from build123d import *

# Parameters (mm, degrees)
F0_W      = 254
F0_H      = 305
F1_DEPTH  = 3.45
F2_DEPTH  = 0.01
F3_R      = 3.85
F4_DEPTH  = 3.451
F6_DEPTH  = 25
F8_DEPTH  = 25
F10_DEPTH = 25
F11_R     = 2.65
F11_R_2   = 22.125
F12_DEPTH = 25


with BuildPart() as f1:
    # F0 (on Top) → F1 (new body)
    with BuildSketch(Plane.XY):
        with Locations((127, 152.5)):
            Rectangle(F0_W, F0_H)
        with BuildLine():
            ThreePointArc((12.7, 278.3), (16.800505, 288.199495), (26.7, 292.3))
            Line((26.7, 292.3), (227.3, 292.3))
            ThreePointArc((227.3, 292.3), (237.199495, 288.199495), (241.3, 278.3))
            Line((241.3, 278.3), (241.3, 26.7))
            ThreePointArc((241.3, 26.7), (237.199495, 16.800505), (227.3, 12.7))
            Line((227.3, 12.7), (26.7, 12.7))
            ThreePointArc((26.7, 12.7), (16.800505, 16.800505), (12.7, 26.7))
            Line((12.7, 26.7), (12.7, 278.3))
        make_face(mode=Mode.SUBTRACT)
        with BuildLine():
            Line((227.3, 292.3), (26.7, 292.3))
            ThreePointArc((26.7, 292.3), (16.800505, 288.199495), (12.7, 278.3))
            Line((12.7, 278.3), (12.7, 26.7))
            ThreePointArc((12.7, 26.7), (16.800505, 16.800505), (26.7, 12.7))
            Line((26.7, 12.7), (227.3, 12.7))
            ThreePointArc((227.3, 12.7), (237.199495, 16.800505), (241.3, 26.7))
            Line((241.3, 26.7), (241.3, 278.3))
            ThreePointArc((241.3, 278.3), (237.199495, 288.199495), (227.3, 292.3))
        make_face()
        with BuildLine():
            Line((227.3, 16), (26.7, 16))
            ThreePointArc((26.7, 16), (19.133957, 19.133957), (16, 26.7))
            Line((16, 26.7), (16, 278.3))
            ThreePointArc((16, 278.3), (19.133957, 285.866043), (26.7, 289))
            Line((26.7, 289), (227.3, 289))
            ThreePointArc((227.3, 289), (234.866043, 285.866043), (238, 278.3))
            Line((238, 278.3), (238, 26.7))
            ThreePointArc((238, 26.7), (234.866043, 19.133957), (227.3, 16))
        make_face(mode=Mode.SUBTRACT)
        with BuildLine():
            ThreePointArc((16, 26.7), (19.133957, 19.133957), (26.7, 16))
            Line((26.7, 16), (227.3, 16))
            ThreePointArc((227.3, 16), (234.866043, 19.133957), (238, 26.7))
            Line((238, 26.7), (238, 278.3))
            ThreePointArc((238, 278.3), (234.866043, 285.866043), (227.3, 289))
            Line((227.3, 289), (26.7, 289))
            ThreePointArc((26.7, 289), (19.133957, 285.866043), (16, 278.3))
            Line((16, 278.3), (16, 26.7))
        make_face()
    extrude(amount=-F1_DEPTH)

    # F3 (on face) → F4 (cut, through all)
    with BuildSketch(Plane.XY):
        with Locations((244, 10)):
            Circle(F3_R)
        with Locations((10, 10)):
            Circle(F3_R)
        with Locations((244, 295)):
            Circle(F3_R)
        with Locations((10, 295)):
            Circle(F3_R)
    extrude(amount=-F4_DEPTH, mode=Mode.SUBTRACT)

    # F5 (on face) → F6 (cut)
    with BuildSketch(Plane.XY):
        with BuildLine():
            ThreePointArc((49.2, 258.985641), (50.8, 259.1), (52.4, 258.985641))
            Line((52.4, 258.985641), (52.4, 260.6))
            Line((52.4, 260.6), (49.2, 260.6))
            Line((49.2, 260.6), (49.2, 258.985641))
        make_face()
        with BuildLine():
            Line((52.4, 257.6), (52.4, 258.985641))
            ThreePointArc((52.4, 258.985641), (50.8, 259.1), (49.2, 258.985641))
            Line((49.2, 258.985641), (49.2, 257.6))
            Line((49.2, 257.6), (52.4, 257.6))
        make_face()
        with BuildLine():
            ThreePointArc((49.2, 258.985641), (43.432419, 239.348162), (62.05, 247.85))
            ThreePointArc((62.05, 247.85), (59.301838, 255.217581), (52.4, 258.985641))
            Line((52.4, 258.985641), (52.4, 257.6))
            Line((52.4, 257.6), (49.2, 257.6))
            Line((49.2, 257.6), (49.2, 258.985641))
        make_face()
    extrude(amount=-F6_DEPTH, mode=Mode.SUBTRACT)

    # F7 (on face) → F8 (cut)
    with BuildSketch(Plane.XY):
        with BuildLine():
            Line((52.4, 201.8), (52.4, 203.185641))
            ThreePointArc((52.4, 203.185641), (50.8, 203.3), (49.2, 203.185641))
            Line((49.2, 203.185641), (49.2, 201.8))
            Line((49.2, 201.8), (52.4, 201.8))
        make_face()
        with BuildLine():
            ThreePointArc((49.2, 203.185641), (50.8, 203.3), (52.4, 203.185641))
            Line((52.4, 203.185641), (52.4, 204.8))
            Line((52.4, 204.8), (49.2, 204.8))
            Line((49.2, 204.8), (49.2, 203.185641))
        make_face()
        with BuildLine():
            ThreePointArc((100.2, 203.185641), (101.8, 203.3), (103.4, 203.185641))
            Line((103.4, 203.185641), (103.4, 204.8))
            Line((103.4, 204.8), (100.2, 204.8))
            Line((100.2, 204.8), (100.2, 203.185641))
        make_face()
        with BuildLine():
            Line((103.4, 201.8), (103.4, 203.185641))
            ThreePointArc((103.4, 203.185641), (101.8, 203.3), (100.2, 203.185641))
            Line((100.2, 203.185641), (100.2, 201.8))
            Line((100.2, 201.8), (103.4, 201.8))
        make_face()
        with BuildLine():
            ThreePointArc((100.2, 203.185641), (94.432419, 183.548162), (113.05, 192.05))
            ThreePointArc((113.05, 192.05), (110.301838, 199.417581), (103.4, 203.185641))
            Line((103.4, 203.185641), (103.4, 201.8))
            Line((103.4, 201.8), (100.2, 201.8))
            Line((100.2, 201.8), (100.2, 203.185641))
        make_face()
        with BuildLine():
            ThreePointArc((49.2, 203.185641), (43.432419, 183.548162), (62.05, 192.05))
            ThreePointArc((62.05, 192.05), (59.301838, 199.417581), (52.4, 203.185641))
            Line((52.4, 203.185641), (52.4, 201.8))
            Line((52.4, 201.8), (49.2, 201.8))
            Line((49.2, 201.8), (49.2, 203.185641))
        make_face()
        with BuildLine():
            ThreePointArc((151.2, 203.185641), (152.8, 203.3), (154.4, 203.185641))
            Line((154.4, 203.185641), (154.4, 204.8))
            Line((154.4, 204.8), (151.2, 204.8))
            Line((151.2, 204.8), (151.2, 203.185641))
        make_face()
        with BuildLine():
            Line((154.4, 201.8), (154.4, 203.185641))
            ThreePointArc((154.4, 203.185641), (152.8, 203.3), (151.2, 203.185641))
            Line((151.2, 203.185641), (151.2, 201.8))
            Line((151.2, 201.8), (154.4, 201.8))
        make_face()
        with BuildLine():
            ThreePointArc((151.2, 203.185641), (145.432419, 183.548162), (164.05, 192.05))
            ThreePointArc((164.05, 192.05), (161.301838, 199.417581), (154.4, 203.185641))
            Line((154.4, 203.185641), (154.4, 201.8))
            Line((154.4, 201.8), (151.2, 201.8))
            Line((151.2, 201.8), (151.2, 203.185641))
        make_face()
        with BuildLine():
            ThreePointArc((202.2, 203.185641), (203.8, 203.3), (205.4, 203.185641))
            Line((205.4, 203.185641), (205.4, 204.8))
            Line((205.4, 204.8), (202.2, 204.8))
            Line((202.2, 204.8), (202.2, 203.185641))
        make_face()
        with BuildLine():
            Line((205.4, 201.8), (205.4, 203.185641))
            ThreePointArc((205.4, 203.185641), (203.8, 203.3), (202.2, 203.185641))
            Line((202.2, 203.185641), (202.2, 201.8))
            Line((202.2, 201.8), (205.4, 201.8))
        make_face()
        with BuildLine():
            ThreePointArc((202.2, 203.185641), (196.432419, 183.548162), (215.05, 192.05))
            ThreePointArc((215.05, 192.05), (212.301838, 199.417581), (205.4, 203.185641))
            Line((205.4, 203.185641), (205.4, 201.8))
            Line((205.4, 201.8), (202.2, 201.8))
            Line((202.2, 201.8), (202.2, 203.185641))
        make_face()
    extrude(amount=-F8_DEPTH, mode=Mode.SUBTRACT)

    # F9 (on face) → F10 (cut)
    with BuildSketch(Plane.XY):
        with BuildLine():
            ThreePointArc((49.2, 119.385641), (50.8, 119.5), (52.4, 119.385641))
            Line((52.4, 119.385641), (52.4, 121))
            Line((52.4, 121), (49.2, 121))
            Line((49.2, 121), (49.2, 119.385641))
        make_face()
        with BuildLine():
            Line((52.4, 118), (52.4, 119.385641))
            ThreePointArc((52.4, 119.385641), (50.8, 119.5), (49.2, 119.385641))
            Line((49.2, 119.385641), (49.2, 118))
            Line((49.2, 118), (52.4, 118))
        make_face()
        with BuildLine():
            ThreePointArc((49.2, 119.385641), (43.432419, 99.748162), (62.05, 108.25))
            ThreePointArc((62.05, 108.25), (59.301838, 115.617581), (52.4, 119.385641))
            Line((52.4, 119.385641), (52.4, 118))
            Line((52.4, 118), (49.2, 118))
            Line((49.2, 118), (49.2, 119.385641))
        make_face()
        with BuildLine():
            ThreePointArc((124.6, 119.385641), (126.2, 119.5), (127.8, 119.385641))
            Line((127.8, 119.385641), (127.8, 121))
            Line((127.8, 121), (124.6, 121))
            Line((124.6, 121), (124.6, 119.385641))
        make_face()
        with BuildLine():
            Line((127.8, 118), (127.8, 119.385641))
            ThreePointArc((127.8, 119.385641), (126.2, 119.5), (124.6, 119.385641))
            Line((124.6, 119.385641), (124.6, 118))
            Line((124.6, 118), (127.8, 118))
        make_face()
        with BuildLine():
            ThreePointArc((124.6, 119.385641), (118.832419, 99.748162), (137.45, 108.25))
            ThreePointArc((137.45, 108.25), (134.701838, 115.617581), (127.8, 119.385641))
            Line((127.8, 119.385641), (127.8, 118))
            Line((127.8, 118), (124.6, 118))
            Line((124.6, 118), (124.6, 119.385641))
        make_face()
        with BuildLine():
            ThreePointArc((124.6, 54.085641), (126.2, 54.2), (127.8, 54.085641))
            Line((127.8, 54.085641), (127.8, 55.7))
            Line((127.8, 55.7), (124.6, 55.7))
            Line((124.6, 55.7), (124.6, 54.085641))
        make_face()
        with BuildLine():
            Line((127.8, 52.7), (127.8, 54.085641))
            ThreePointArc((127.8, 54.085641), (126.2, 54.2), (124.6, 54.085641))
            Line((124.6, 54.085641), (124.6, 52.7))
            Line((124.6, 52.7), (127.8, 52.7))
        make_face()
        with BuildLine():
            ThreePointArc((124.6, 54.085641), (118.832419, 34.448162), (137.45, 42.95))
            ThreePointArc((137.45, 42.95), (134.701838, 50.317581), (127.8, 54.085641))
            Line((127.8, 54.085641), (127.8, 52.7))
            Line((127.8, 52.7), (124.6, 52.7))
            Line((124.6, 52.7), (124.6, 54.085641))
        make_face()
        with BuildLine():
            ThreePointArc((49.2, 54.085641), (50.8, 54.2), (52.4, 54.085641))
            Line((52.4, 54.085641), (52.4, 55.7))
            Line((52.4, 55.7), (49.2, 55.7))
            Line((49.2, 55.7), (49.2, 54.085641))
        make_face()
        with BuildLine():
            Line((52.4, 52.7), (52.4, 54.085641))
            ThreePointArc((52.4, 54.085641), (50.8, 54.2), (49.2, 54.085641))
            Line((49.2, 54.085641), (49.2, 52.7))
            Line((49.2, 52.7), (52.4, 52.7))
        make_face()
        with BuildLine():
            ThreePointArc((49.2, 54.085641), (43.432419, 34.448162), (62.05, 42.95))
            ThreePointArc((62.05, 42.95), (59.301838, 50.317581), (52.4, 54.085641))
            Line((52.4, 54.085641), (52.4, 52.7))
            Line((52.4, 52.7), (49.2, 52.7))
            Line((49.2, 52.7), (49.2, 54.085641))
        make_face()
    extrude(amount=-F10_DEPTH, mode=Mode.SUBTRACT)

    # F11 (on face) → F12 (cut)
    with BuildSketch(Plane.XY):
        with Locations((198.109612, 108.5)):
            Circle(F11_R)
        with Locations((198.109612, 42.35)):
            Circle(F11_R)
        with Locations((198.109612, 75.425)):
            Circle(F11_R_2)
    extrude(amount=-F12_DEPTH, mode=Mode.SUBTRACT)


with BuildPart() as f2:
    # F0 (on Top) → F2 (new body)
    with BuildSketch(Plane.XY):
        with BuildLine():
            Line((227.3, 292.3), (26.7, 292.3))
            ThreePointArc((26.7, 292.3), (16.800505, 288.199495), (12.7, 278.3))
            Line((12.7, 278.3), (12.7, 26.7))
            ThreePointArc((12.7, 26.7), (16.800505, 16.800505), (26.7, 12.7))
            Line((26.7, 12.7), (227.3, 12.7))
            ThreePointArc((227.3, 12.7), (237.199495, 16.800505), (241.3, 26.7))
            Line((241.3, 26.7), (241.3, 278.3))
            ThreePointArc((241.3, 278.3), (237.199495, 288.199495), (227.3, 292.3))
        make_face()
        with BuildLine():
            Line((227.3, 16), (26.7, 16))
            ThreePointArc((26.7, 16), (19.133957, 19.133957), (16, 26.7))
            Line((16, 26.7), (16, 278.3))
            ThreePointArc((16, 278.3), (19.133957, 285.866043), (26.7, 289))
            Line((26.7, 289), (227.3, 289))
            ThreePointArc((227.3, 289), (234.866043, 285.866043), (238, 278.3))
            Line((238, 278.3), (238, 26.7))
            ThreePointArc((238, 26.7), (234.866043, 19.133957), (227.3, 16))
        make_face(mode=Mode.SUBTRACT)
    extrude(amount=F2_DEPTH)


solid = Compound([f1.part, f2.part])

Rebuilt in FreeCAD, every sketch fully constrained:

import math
import FreeCAD as App
import Part
import Sketcher

V = App.Vector
Q = App.Units.Quantity

doc = App.newDocument("Part")
body = doc.addObject("PartDesign::Body", "Body")

sketch1 = body.newObject("Sketcher::SketchObject", "Sketch")
sketch1.AttachmentSupport = (doc.getObject("XY_Plane"), [""])
sketch1.MapMode = "FlatFace"
sketch1.addGeometry([
    Part.LineSegment(V(0, 305, 0), V(0, 0, 0)),
    Part.LineSegment(V(0, 0, 0), V(254, 0, 0)),
    Part.LineSegment(V(254, 0, 0), V(254, 305, 0)),
    Part.LineSegment(V(254, 305, 0), V(0, 305, 0)),
], False)
sketch1.addConstraint([
    Sketcher.Constraint("Coincident", 0, 2, 1, 1),
    Sketcher.Constraint("Coincident", 1, 2, 2, 1),
    Sketcher.Constraint("Coincident", 2, 2, 3, 1),
    Sketcher.Constraint("Coincident", 3, 2, 0, 1),
    Sketcher.Constraint("Vertical", 0),
    Sketcher.Constraint("Horizontal", 1),
    Sketcher.Constraint("Vertical", 2),
    Sketcher.Constraint("Horizontal", 3),
    Sketcher.Constraint("Coincident", 0, 2, -1, 1),
    Sketcher.Constraint("DistanceX", 1, 1, 1, 2, Q("254 mm")),
    Sketcher.Constraint("DistanceY", 0, 2, 0, 1, Q("305 mm")),
])
pad1 = body.newObject("PartDesign::Pad", "Pad")
pad1.Profile = sketch1
pad1.Length = 3.45
pad1.Reversed = True

sketch2 = body.newObject("Sketcher::SketchObject", "Sketch001")
sketch2.AttachmentSupport = (doc.getObject("XY_Plane"), [""])
sketch2.MapMode = "FlatFace"
sketch2.addGeometry([
    Part.Circle(V(244, 10, 0), V(0, 0, 1), 3.9),
    Part.Circle(V(10, 10, 0), V(0, 0, 1), 3.9),
    Part.Circle(V(244, 295, 0), V(0, 0, 1), 3.9),
    Part.Circle(V(10, 295, 0), V(0, 0, 1), 3.9),
], False)
sketch2.addConstraint([
    Sketcher.Constraint("Equal", 0, 1),
    Sketcher.Constraint("Equal", 1, 2),
    Sketcher.Constraint("Equal", 2, 3),
    Sketcher.Constraint("Horizontal", 0, 3, 1, 3),
    Sketcher.Constraint("Horizontal", 2, 3, 3, 3),
    Sketcher.Constraint("Vertical", 0, 3, 2, 3),
    Sketcher.Constraint("Vertical", 1, 3, 3, 3),
    Sketcher.Constraint("Diameter", 0, Q("7.7 mm")),
    Sketcher.Constraint("DistanceX", -1, 1, 0, 3, Q("244 mm")),
    Sketcher.Constraint("DistanceY", -1, 1, 0, 3, Q("10 mm")),
    Sketcher.Constraint("DistanceX", -1, 1, 1, 3, Q("10 mm")),
    Sketcher.Constraint("DistanceY", -1, 1, 2, 3, Q("295 mm")),
])
pocket1 = body.newObject("PartDesign::Pocket", "Pocket")
pocket1.Profile = sketch2
pocket1.Type = "ThroughAll"

sketch3 = body.newObject("Sketcher::SketchObject", "Sketch002")
sketch3.AttachmentSupport = (doc.getObject("XY_Plane"), [""])
sketch3.MapMode = "FlatFace"
sketch3.addGeometry([
    Part.LineSegment(V(52.4, 260.6, 0), V(49.2, 260.6, 0)),
    Part.LineSegment(V(49.2, 260.6, 0), V(49.2, 259, 0)),
    Part.ArcOfCircle(Part.Circle(V(50.8, 247.9, 0), V(0, 0, 1), 11.2), math.radians(98), math.radians(360)),
    Part.ArcOfCircle(Part.Circle(V(50.8, 247.8, 0), V(0, 0, 1), 11.3), math.radians(0), math.radians(82)),
    Part.LineSegment(V(52.4, 259, 0), V(52.4, 260.6, 0)),
], False)
sketch3.addConstraint([
    Sketcher.Constraint("Coincident", 0, 2, 1, 1),
    Sketcher.Constraint("Coincident", 1, 2, 2, 1),
    Sketcher.Constraint("Tangent", 2, 2, 3, 1),
    Sketcher.Constraint("Coincident", 3, 2, 4, 1),
    Sketcher.Constraint("Coincident", 4, 2, 0, 1),
    Sketcher.Constraint("Horizontal", 0),
    Sketcher.Constraint("Vertical", 1),
    Sketcher.Constraint("Vertical", 4),
    Sketcher.Constraint("Equal", 2, 3),
    Sketcher.Constraint("Horizontal", 3, 3, 2, 2),
    Sketcher.Constraint("Horizontal", 1, 2, 3, 2),
    Sketcher.Constraint("Radius", 2, Q("11.25 mm")),
    Sketcher.Constraint("DistanceX", 0, 2, 0, 1, Q("3.2 mm")),
    Sketcher.Constraint("DistanceX", -1, 1, 2, 3, Q("50.8 mm")),
    Sketcher.Constraint("DistanceY", -1, 1, 0, 2, Q("260.6 mm")),
    Sketcher.Constraint("DistanceY", -1, 1, 2, 3, Q("247.85 mm")),
])
pocket2 = body.newObject("PartDesign::Pocket", "Pocket001")
pocket2.Profile = sketch3
pocket2.Length = 25

sketch4 = body.newObject("Sketcher::SketchObject", "Sketch003")
sketch4.AttachmentSupport = (doc.getObject("XY_Plane"), [""])
sketch4.MapMode = "FlatFace"
sketch4.addGeometry([
    Part.LineSegment(V(52.4, 203.2, 0), V(52.4, 204.8, 0)),
    Part.LineSegment(V(52.4, 204.8, 0), V(49.2, 204.8, 0)),
    Part.LineSegment(V(49.2, 204.8, 0), V(49.2, 203.2, 0)),
    Part.ArcOfCircle(Part.Circle(V(50.8, 192.1, 0), V(0, 0, 1), 11.2), math.radians(98), math.radians(360)),
    Part.ArcOfCircle(Part.Circle(V(50.8, 192, 0), V(0, 0, 1), 11.3), math.radians(0), math.radians(82)),
    Part.LineSegment(V(103.4, 204.8, 0), V(100.2, 204.8, 0)),
    Part.LineSegment(V(100.2, 204.8, 0), V(100.2, 203.2, 0)),
    Part.ArcOfCircle(Part.Circle(V(101.8, 192.1, 0), V(0, 0, 1), 11.2), math.radians(98), math.radians(360)),
    Part.ArcOfCircle(Part.Circle(V(101.8, 192, 0), V(0, 0, 1), 11.3), math.radians(0), math.radians(82)),
    Part.LineSegment(V(103.4, 203.2, 0), V(103.4, 204.8, 0)),
    Part.LineSegment(V(154.4, 204.8, 0), V(151.2, 204.8, 0)),
    Part.LineSegment(V(151.2, 204.8, 0), V(151.2, 203.2, 0)),
    Part.ArcOfCircle(Part.Circle(V(152.8, 192.1, 0), V(0, 0, 1), 11.2), math.radians(98), math.radians(360)),
    Part.ArcOfCircle(Part.Circle(V(152.8, 192, 0), V(0, 0, 1), 11.3), math.radians(0), math.radians(82)),
    Part.LineSegment(V(154.4, 203.2, 0), V(154.4, 204.8, 0)),
    Part.LineSegment(V(205.4, 204.8, 0), V(202.2, 204.8, 0)),
    Part.LineSegment(V(202.2, 204.8, 0), V(202.2, 203.2, 0)),
    Part.ArcOfCircle(Part.Circle(V(203.8, 192.1, 0), V(0, 0, 1), 11.2), math.radians(98), math.radians(360)),
    Part.ArcOfCircle(Part.Circle(V(203.8, 192, 0), V(0, 0, 1), 11.3), math.radians(0), math.radians(82)),
    Part.LineSegment(V(205.4, 203.2, 0), V(205.4, 204.8, 0)),
], False)
sketch4.addConstraint([
    Sketcher.Constraint("Coincident", 0, 2, 1, 1),
    Sketcher.Constraint("Coincident", 1, 2, 2, 1),
    Sketcher.Constraint("Coincident", 2, 2, 3, 1),
    Sketcher.Constraint("Tangent", 3, 2, 4, 1),
    Sketcher.Constraint("Coincident", 4, 2, 0, 1),
    Sketcher.Constraint("Coincident", 5, 2, 6, 1),
    Sketcher.Constraint("Coincident", 6, 2, 7, 1),
    Sketcher.Constraint("Tangent", 7, 2, 8, 1),
    Sketcher.Constraint("Coincident", 8, 2, 9, 1),
    Sketcher.Constraint("Coincident", 9, 2, 5, 1),
    Sketcher.Constraint("Coincident", 10, 2, 11, 1),
    Sketcher.Constraint("Coincident", 11, 2, 12, 1),
    Sketcher.Constraint("Tangent", 12, 2, 13, 1),
    Sketcher.Constraint("Coincident", 13, 2, 14, 1),
    Sketcher.Constraint("Coincident", 14, 2, 10, 1),
    Sketcher.Constraint("Coincident", 15, 2, 16, 1),
    Sketcher.Constraint("Coincident", 16, 2, 17, 1),
    Sketcher.Constraint("Tangent", 17, 2, 18, 1),
    Sketcher.Constraint("Coincident", 18, 2, 19, 1),
    Sketcher.Constraint("Coincident", 19, 2, 15, 1),
    Sketcher.Constraint("Vertical", 0),
    Sketcher.Constraint("Horizontal", 1),
    Sketcher.Constraint("Vertical", 2),
    Sketcher.Constraint("Horizontal", 5),
    Sketcher.Constraint("Vertical", 6),
    Sketcher.Constraint("Vertical", 9),
    Sketcher.Constraint("Horizontal", 10),
    Sketcher.Constraint("Vertical", 11),
    Sketcher.Constraint("Vertical", 14),
    Sketcher.Constraint("Horizontal", 15),
    Sketcher.Constraint("Vertical", 16),
    Sketcher.Constraint("Vertical", 19),
    Sketcher.Constraint("Equal", 3, 4),
    Sketcher.Constraint("Equal", 4, 7),
    Sketcher.Constraint("Equal", 7, 8),
    Sketcher.Constraint("Equal", 8, 12),
    Sketcher.Constraint("Equal", 12, 13),
    Sketcher.Constraint("Equal", 13, 17),
    Sketcher.Constraint("Equal", 17, 18),
    Sketcher.Constraint("Horizontal", 4, 3, 7, 3),
    Sketcher.Constraint("Horizontal", 8, 3, 12, 3),
    Sketcher.Constraint("Horizontal", 13, 3, 17, 3),
    Sketcher.Constraint("Horizontal", 18, 3, 3, 2),
    Sketcher.Constraint("Horizontal", 2, 2, 4, 2),
    Sketcher.Constraint("Horizontal", 1, 2, 5, 2),
    Sketcher.Constraint("Horizontal", 4, 2, 6, 2),
    Sketcher.Constraint("Horizontal", 3, 2, 7, 2),
    Sketcher.Constraint("Horizontal", 6, 2, 8, 2),
    Sketcher.Constraint("Horizontal", 9, 2, 10, 2),
    Sketcher.Constraint("Horizontal", 8, 2, 11, 2),
    Sketcher.Constraint("Horizontal", 7, 2, 12, 2),
    Sketcher.Constraint("Horizontal", 11, 2, 13, 2),
    Sketcher.Constraint("Horizontal", 14, 2, 15, 2),
    Sketcher.Constraint("Horizontal", 13, 2, 16, 2),
    Sketcher.Constraint("Horizontal", 12, 2, 17, 2),
    Sketcher.Constraint("Horizontal", 16, 2, 18, 2),
    Sketcher.Constraint("Radius", 3, Q("11.25 mm")),
    Sketcher.Constraint("DistanceX", 1, 2, 1, 1, Q("3.2 mm")),
    Sketcher.Constraint("DistanceX", 3, 3, 7, 3, Q("51 mm")),
    Sketcher.Constraint("DistanceX", 7, 3, 12, 3, Q("51 mm")),
    Sketcher.Constraint("DistanceX", 12, 3, 17, 3, Q("51 mm")),
    Sketcher.Constraint("DistanceX", -1, 1, 3, 3, Q("50.8 mm")),
    Sketcher.Constraint("DistanceY", -1, 1, 0, 2, Q("204.8 mm")),
    Sketcher.Constraint("DistanceY", -1, 1, 3, 3, Q("192.05 mm")),
])
pocket3 = body.newObject("PartDesign::Pocket", "Pocket002")
pocket3.Profile = sketch4
pocket3.Length = 25

sketch5 = body.newObject("Sketcher::SketchObject", "Sketch004")
sketch5.AttachmentSupport = (doc.getObject("XY_Plane"), [""])
sketch5.MapMode = "FlatFace"
sketch5.addGeometry([
    Part.LineSegment(V(52.4, 121, 0), V(49.2, 121, 0)),
    Part.LineSegment(V(49.2, 121, 0), V(49.2, 119.4, 0)),
    Part.ArcOfCircle(Part.Circle(V(50.8, 108.3, 0), V(0, 0, 1), 11.2), math.radians(98), math.radians(360)),
    Part.ArcOfCircle(Part.Circle(V(50.8, 108.2, 0), V(0, 0, 1), 11.3), math.radians(0), math.radians(82)),
    Part.LineSegment(V(52.4, 119.4, 0), V(52.4, 121, 0)),
    Part.LineSegment(V(127.8, 121, 0), V(124.6, 121, 0)),
    Part.LineSegment(V(124.6, 121, 0), V(124.6, 119.4, 0)),
    Part.ArcOfCircle(Part.Circle(V(126.2, 108.3, 0), V(0, 0, 1), 11.2), math.radians(98), math.radians(360)),
    Part.ArcOfCircle(Part.Circle(V(126.2, 108.2, 0), V(0, 0, 1), 11.3), math.radians(0), math.radians(82)),
    Part.LineSegment(V(127.8, 119.4, 0), V(127.8, 121, 0)),
    Part.LineSegment(V(127.8, 55.7, 0), V(124.6, 55.7, 0)),
    Part.LineSegment(V(124.6, 55.7, 0), V(124.6, 54.1, 0)),
    Part.ArcOfCircle(Part.Circle(V(126.2, 43, 0), V(0, 0, 1), 11.2), math.radians(98), math.radians(360)),
    Part.ArcOfCircle(Part.Circle(V(126.2, 42.9, 0), V(0, 0, 1), 11.3), math.radians(0), math.radians(82)),
    Part.LineSegment(V(127.8, 54.1, 0), V(127.8, 55.7, 0)),
    Part.LineSegment(V(52.4, 55.7, 0), V(49.2, 55.7, 0)),
    Part.LineSegment(V(49.2, 55.7, 0), V(49.2, 54.1, 0)),
    Part.ArcOfCircle(Part.Circle(V(50.8, 43, 0), V(0, 0, 1), 11.2), math.radians(98), math.radians(360)),
    Part.ArcOfCircle(Part.Circle(V(50.8, 42.9, 0), V(0, 0, 1), 11.3), math.radians(0), math.radians(82)),
    Part.LineSegment(V(52.4, 54.1, 0), V(52.4, 55.7, 0)),
], False)
sketch5.addConstraint([
    Sketcher.Constraint("Coincident", 0, 2, 1, 1),
    Sketcher.Constraint("Coincident", 1, 2, 2, 1),
    Sketcher.Constraint("Tangent", 2, 2, 3, 1),
    Sketcher.Constraint("Coincident", 3, 2, 4, 1),
    Sketcher.Constraint("Coincident", 4, 2, 0, 1),
    Sketcher.Constraint("Coincident", 5, 2, 6, 1),
    Sketcher.Constraint("Coincident", 6, 2, 7, 1),
    Sketcher.Constraint("Tangent", 7, 2, 8, 1),
    Sketcher.Constraint("Coincident", 8, 2, 9, 1),
    Sketcher.Constraint("Coincident", 9, 2, 5, 1),
    Sketcher.Constraint("Coincident", 10, 2, 11, 1),
    Sketcher.Constraint("Coincident", 11, 2, 12, 1),
    Sketcher.Constraint("Tangent", 12, 2, 13, 1),
    Sketcher.Constraint("Coincident", 13, 2, 14, 1),
    Sketcher.Constraint("Coincident", 14, 2, 10, 1),
    Sketcher.Constraint("Coincident", 15, 2, 16, 1),
    Sketcher.Constraint("Coincident", 16, 2, 17, 1),
    Sketcher.Constraint("Tangent", 17, 2, 18, 1),
    Sketcher.Constraint("Coincident", 18, 2, 19, 1),
    Sketcher.Constraint("Coincident", 19, 2, 15, 1),
    Sketcher.Constraint("Horizontal", 0),
    Sketcher.Constraint("Vertical", 1),
    Sketcher.Constraint("Vertical", 4),
    Sketcher.Constraint("Horizontal", 5),
    Sketcher.Constraint("Vertical", 6),
    Sketcher.Constraint("Vertical", 9),
    Sketcher.Constraint("Horizontal", 10),
    Sketcher.Constraint("Vertical", 11),
    Sketcher.Constraint("Vertical", 14),
    Sketcher.Constraint("Horizontal", 15),
    Sketcher.Constraint("Vertical", 16),
    Sketcher.Constraint("Vertical", 19),
    Sketcher.Constraint("Equal", 2, 3),
    Sketcher.Constraint("Equal", 3, 7),
    Sketcher.Constraint("Equal", 7, 8),
    Sketcher.Constraint("Equal", 8, 12),
    Sketcher.Constraint("Equal", 12, 13),
    Sketcher.Constraint("Equal", 13, 17),
    Sketcher.Constraint("Equal", 17, 18),
    Sketcher.Constraint("Horizontal", 3, 3, 7, 3),
    Sketcher.Constraint("Horizontal", 13, 3, 17, 3),
    Sketcher.Constraint("Horizontal", 8, 3, 2, 2),
    Sketcher.Constraint("Horizontal", 1, 2, 3, 2),
    Sketcher.Constraint("Horizontal", 4, 2, 5, 2),
    Sketcher.Constraint("Horizontal", 3, 2, 6, 2),
    Sketcher.Constraint("Horizontal", 2, 2, 7, 2),
    Sketcher.Constraint("Horizontal", 6, 2, 8, 2),
    Sketcher.Constraint("Horizontal", 18, 3, 12, 2),
    Sketcher.Constraint("Horizontal", 11, 2, 13, 2),
    Sketcher.Constraint("Horizontal", 14, 2, 15, 2),
    Sketcher.Constraint("Horizontal", 13, 2, 16, 2),
    Sketcher.Constraint("Horizontal", 12, 2, 17, 2),
    Sketcher.Constraint("Horizontal", 16, 2, 18, 2),
    Sketcher.Constraint("Vertical", 8, 3, 12, 3),
    Sketcher.Constraint("Vertical", 3, 3, 17, 3),
    Sketcher.Constraint("Vertical", 6, 2, 10, 2),
    Sketcher.Constraint("Equal", 9, 11),
    Sketcher.Constraint("Radius", 2, Q("11.25 mm")),
    Sketcher.Constraint("DistanceX", 0, 2, 0, 1, Q("3.2 mm")),
    Sketcher.Constraint("DistanceY", -1, 1, 0, 2, Q("121 mm")),
    Sketcher.Constraint("DistanceX", 0, 2, 8, 3, Q("77 mm")),
    Sketcher.Constraint("DistanceX", -1, 1, 2, 3, Q("50.8 mm")),
    Sketcher.Constraint("DistanceY", -1, 1, 10, 2, Q("55.7 mm")),
    Sketcher.Constraint("DistanceY", -1, 1, 2, 3, Q("108.25 mm")),
])
pocket4 = body.newObject("PartDesign::Pocket", "Pocket003")
pocket4.Profile = sketch5
pocket4.Length = 25

sketch6 = body.newObject("Sketcher::SketchObject", "Sketch005")
sketch6.AttachmentSupport = (doc.getObject("XY_Plane"), [""])
sketch6.MapMode = "FlatFace"
sketch6.addGeometry([
    Part.Circle(V(198.1, 108.5, 0), V(0, 0, 1), 2.6),
    Part.Circle(V(198.1, 42.4, 0), V(0, 0, 1), 2.6),
    Part.Circle(V(198.1, 75.4, 0), V(0, 0, 1), 22.1),
], False)
sketch6.addConstraint([
    Sketcher.Constraint("Equal", 0, 1),
    Sketcher.Constraint("Vertical", 0, 3, 1, 3),
    Sketcher.Constraint("Vertical", 1, 3, 2, 3),
    Sketcher.Constraint("Diameter", 0, Q("5.3 mm")),
    Sketcher.Constraint("Diameter", 2, Q("44.25 mm")),
    Sketcher.Constraint("DistanceY", -1, 1, 0, 3, Q("108.5 mm")),
    Sketcher.Constraint("DistanceY", -1, 1, 1, 3, Q("42.35 mm")),
    Sketcher.Constraint("DistanceY", -1, 1, 2, 3, Q("75.425 mm")),
    Sketcher.Constraint("DistanceX", -1, 1, 0, 3, Q("198.109612 mm")),
])
pocket5 = body.newObject("PartDesign::Pocket", "Pocket004")
pocket5.Profile = sketch6
pocket5.Length = 25
body2 = doc.addObject("PartDesign::Body", "Body001")

sketch7 = body2.newObject("Sketcher::SketchObject", "Sketch006")
sketch7.AttachmentSupport = (doc.getObject("XY_Plane001"), [""])
sketch7.MapMode = "FlatFace"
sketch7.addGeometry([
    Part.LineSegment(V(227, 292, 0), V(27, 292, 0)),
    Part.ArcOfCircle(Part.Circle(V(27, 278, 0), V(0, 0, 1), 14), math.radians(90), math.radians(180)),
    Part.LineSegment(V(13, 278, 0), V(13, 27, 0)),
    Part.ArcOfCircle(Part.Circle(V(27, 27, 0), V(0, 0, 1), 14), math.radians(180), math.radians(270)),
    Part.LineSegment(V(27, 13, 0), V(227, 13, 0)),
    Part.ArcOfCircle(Part.Circle(V(227, 27, 0), V(0, 0, 1), 14), math.radians(-90), math.radians(0)),
    Part.LineSegment(V(241, 27, 0), V(241, 278, 0)),
    Part.ArcOfCircle(Part.Circle(V(227, 278, 0), V(0, 0, 1), 14), math.radians(0), math.radians(90)),
    Part.ArcOfCircle(Part.Circle(V(227, 27, 0), V(0, 0, 1), 11), math.radians(-90), math.radians(0)),
    Part.LineSegment(V(227, 16, 0), V(27, 16, 0)),
    Part.ArcOfCircle(Part.Circle(V(27, 27, 0), V(0, 0, 1), 11), math.radians(180), math.radians(270)),
    Part.LineSegment(V(16, 27, 0), V(16, 278, 0)),
    Part.ArcOfCircle(Part.Circle(V(27, 278, 0), V(0, 0, 1), 11), math.radians(90), math.radians(180)),
    Part.LineSegment(V(27, 289, 0), V(227, 289, 0)),
    Part.ArcOfCircle(Part.Circle(V(227, 278, 0), V(0, 0, 1), 11), math.radians(0), math.radians(90)),
    Part.LineSegment(V(238, 278, 0), V(238, 27, 0)),
], False)
sketch7.addConstraint([
    Sketcher.Constraint("Tangent", 0, 2, 1, 1),
    Sketcher.Constraint("Tangent", 1, 2, 2, 1),
    Sketcher.Constraint("Tangent", 2, 2, 3, 1),
    Sketcher.Constraint("Tangent", 3, 2, 4, 1),
    Sketcher.Constraint("Tangent", 4, 2, 5, 1),
    Sketcher.Constraint("Tangent", 5, 2, 6, 1),
    Sketcher.Constraint("Tangent", 6, 2, 7, 1),
    Sketcher.Constraint("Tangent", 7, 2, 0, 1),
    Sketcher.Constraint("Tangent", 8, 1, 9, 1),
    Sketcher.Constraint("Tangent", 9, 2, 10, 2),
    Sketcher.Constraint("Tangent", 10, 1, 11, 1),
    Sketcher.Constraint("Tangent", 11, 2, 12, 2),
    Sketcher.Constraint("Tangent", 12, 1, 13, 1),
    Sketcher.Constraint("Tangent", 13, 2, 14, 2),
    Sketcher.Constraint("Tangent", 14, 1, 15, 1),
    Sketcher.Constraint("Tangent", 15, 2, 8, 2),
    Sketcher.Constraint("Horizontal", 0),
    Sketcher.Constraint("Vertical", 2),
    Sketcher.Constraint("Horizontal", 4),
    Sketcher.Constraint("Vertical", 6),
    Sketcher.Constraint("Horizontal", 9),
    Sketcher.Constraint("Vertical", 11),
    Sketcher.Constraint("Horizontal", 13),
    Sketcher.Constraint("Vertical", 15),
    Sketcher.Constraint("Coincident", 8, 3, 5, 3),
    Sketcher.Constraint("Coincident", 10, 3, 3, 3),
    Sketcher.Constraint("Coincident", 12, 3, 1, 3),
    Sketcher.Constraint("Equal", 1, 3),
    Sketcher.Constraint("Equal", 3, 5),
    Sketcher.Constraint("Equal", 5, 7),
    Sketcher.Constraint("Equal", 12, 14),
    Sketcher.Constraint("Radius", 1, Q("14 mm")),
    Sketcher.Constraint("Radius", 8, Q("10.699998 mm")),
    Sketcher.Constraint("DistanceX", 0, 2, 0, 1, Q("200.6 mm")),
    Sketcher.Constraint("DistanceY", 2, 2, 2, 1, Q("251.6 mm")),
    Sketcher.Constraint("DistanceY", -1, 1, 8, 1, Q("16 mm")),
    Sketcher.Constraint("DistanceX", -1, 1, 10, 1, Q("16 mm")),
])
pad2 = body2.newObject("PartDesign::Pad", "Pad001")
pad2.Profile = sketch7
pad2.Length = 0.01

doc.recompute()
